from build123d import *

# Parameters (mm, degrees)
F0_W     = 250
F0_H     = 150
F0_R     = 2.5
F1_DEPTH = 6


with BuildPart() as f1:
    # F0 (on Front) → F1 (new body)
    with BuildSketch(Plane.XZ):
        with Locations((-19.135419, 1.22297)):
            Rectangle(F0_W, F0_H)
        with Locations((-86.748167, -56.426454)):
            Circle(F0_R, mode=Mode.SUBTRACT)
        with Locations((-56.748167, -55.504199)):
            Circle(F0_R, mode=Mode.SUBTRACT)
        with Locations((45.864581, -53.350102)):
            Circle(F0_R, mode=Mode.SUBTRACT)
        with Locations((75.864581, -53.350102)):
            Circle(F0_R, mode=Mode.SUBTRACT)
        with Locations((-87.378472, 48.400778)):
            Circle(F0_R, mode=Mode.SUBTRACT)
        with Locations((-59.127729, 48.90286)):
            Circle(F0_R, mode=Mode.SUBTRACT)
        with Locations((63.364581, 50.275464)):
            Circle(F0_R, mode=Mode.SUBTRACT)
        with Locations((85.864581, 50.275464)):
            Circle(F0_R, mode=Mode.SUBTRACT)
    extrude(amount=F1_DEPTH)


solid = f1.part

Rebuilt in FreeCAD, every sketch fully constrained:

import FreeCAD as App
import Part
import Sketcher
from FreeCAD import Vector

doc = App.newDocument("Part")
body = doc.addObject("PartDesign::Body", "Body")

sketch1 = doc.addObject("Sketcher::SketchObject", "Sketch")
body.addObject(sketch1)
sketch1.AttachmentSupport = (doc.XZ_Plane, [""])
sketch1.MapMode = "FlatFace"
sketch1.addGeometry(Part.LineSegment(Vector(-144.1, 76.2, 0), Vector(-144.1, -73.8, 0)), False)
sketch1.addGeometry(Part.LineSegment(Vector(-144.1, -73.8, 0), Vector(105.9, -73.8, 0)), False)
sketch1.addGeometry(Part.LineSegment(Vector(105.9, -73.8, 0), Vector(105.9, 76.2, 0)), False)
sketch1.addGeometry(Part.LineSegment(Vector(105.9, 76.2, 0), Vector(-144.1, 76.2, 0)), False)
sketch1.addGeometry(Part.Circle(Vector(-86.7, -56.4, 0), Vector(0, 0, 1), 2.5), False)
sketch1.addGeometry(Part.Circle(Vector(-56.7, -55.5, 0), Vector(0, 0, 1), 2.5), False)
sketch1.addGeometry(Part.Circle(Vector(45.9, -53.4, 0), Vector(0, 0, 1), 2.5), False)
sketch1.addGeometry(Part.Circle(Vector(75.9, -53.4, 0), Vector(0, 0, 1), 2.5), False)
sketch1.addGeometry(Part.Circle(Vector(-87.4, 48.4, 0), Vector(0, 0, 1), 2.5), False)
sketch1.addGeometry(Part.Circle(Vector(-59.1, 48.9, 0), Vector(0, 0, 1), 2.5), False)
sketch1.addGeometry(Part.Circle(Vector(63.4, 50.3, 0), Vector(0, 0, 1), 2.5), False)
sketch1.addGeometry(Part.Circle(Vector(85.9, 50.3, 0), Vector(0, 0, 1), 2.5), False)
sketch1.addConstraint(Sketcher.Constraint("Coincident", 0, 2, 1, 1))
sketch1.addConstraint(Sketcher.Constraint("Coincident", 1, 2, 2, 1))
sketch1.addConstraint(Sketcher.Constraint("Coincident", 2, 2, 3, 1))
sketch1.addConstraint(Sketcher.Constraint("Coincident", 3, 2, 0, 1))
sketch1.addConstraint(Sketcher.Constraint("Vertical", 0))
sketch1.addConstraint(Sketcher.Constraint("Horizontal", 1))
sketch1.addConstraint(Sketcher.Constraint("Vertical", 2))
sketch1.addConstraint(Sketcher.Constraint("Horizontal", 3))
sketch1.addConstraint(Sketcher.Constraint("Equal", 4, 5))
sketch1.addConstraint(Sketcher.Constraint("Equal", 5, 6))
sketch1.addConstraint(Sketcher.Constraint("Equal", 6, 7))
sketch1.addConstraint(Sketcher.Constraint("Equal", 7, 8))
sketch1.addConstraint(Sketcher.Constraint("Equal", 8, 9))
sketch1.addConstraint(Sketcher.Constraint("Equal", 9, 10))
sketch1.addConstraint(Sketcher.Constraint("Equal", 10, 11))
sketch1.addConstraint(Sketcher.Constraint("Horizontal", 6, 3, 7, 3))
sketch1.addConstraint(Sketcher.Constraint("Horizontal", 10, 3, 11, 3))
sketch1.addConstraint(Sketcher.Constraint("Diameter", 4, 5.0))
sketch1.addConstraint(Sketcher.Constraint("DistanceX", 1, 1, 1, 2, 250.0))
sketch1.addConstraint(Sketcher.Constraint("DistanceY", 0, 2, 0, 1, 150.0))
sketch1.addConstraint(Sketcher.Constraint("DistanceX", 4, 3, 5, 3, 30.0))
sketch1.addConstraint(Sketcher.Constraint("DistanceX", 6, 3, 7, 3, 30.0))
sketch1.addConstraint(Sketcher.Constraint("DistanceX", 7, 3, 11, 3, 10.0))
sketch1.addConstraint(Sketcher.Constraint("DistanceX", 0, 2, 6, 3, 190.0))
sketch1.addConstraint(Sketcher.Constraint("DistanceX", 10, 3, 7, 3, 12.5))
sketch1.addConstraint(Sketcher.Constraint("DistanceY", 5, 3, -1, 1, 55.504199))
sketch1.addConstraint(Sketcher.Constraint("DistanceX", -1, 1, 6, 3, 45.864581))
sketch1.addConstraint(Sketcher.Constraint("DistanceY", -1, 1, 8, 3, 48.400778))
sketch1.addConstraint(Sketcher.Constraint("DistanceX", 9, 3, -1, 1, 59.127729))
sketch1.addConstraint(Sketcher.Constraint("DistanceY", -1, 1, 9, 3, 48.90286))
sketch1.addConstraint(Sketcher.Constraint("DistanceY", 0, 2, -1, 1, 73.77703))
sketch1.addConstraint(Sketcher.Constraint("DistanceX", 5, 3, 6, 3, 102.612748))
sketch1.addConstraint(Sketcher.Constraint("DistanceY", 4, 3, 6, 3, 3.076352))
sketch1.addConstraint(Sketcher.Constraint("DistanceY", 6, 3, 8, 3, 101.75088))
sketch1.addConstraint(Sketcher.Constraint("DistanceX", 8, 3, -1, 1, 87.378472))
sketch1.addConstraint(Sketcher.Constraint("DistanceY", -1, 1, 10, 3, 50.275464))
pad1 = doc.addObject("PartDesign::Pad", "Pad")
body.addObject(pad1)
pad1.Profile = sketch1
pad1.Length = 6

doc.recompute()
